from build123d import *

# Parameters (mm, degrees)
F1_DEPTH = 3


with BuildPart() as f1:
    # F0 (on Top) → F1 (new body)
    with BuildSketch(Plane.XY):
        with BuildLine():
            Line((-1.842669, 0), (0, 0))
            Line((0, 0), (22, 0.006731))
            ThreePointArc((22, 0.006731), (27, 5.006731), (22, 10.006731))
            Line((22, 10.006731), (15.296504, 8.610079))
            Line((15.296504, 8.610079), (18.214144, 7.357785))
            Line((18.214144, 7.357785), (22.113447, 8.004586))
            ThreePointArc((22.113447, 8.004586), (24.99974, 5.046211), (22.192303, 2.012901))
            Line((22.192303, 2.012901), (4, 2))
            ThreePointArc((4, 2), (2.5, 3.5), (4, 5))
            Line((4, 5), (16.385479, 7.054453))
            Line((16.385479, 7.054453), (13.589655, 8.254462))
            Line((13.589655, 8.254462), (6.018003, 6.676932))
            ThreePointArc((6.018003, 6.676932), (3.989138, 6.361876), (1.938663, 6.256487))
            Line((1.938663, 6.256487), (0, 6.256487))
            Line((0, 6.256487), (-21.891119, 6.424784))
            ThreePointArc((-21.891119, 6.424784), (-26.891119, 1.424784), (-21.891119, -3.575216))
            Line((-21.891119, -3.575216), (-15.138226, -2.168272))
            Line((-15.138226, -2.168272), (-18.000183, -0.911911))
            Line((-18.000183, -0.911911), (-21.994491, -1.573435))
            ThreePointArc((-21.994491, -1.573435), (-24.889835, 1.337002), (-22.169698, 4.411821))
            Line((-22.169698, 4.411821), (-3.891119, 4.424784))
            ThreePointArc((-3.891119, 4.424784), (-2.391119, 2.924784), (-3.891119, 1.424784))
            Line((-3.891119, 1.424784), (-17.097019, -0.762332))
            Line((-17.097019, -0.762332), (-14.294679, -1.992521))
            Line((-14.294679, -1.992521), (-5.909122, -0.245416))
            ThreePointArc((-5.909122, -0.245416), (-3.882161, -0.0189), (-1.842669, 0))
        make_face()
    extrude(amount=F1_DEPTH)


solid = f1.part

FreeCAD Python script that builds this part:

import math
import FreeCAD as App
import Part
import Sketcher
from FreeCAD import Vector

doc = App.newDocument("Part")
body = doc.addObject("PartDesign::Body", "Body")

# Sketch on XY plane
sketch1 = doc.addObject("Sketcher::SketchObject", "Sketch")
body.addObject(sketch1)
sketch1.AttachmentSupport = (doc.XY_Plane, [""])
sketch1.MapMode = "FlatFace"
sketch1.addGeometry([
    Part.LineSegment(Vector(-1.8, 0, 0), Vector(0, 0, 0)),  # 0
    Part.LineSegment(Vector(0, 0, 0), Vector(22, 0, 0)),  # 1
    Part.ArcOfCircle(Part.Circle(Vector(22, 5, 0), Vector(0, 0, 1), 5), math.radians(-90), math.radians(90)),  # 2
    Part.LineSegment(Vector(22, 10, 0), Vector(15.3, 8.6, 0)),  # 3
    Part.LineSegment(Vector(15.3, 8.6, 0), Vector(18.2, 7.4, 0)),  # 4
    Part.LineSegment(Vector(18.2, 7.4, 0), Vector(22.1, 8, 0)),  # 5
    Part.ArcOfCircle(Part.Circle(Vector(22, 5, 0), Vector(0, 0, 1), 3), math.radians(-86), math.radians(88)),  # 6
    Part.LineSegment(Vector(22.2, 2, 0), Vector(4, 2, 0)),  # 7
    Part.ArcOfCircle(Part.Circle(Vector(4, 3.5, 0), Vector(0, 0, 1), 1.5), math.radians(90), math.radians(270)),  # 8
    Part.LineSegment(Vector(4, 5, 0), Vector(16.4, 7.1, 0)),  # 9
    Part.LineSegment(Vector(16.4, 7.1, 0), Vector(13.6, 8.3, 0)),  # 10
    Part.LineSegment(Vector(13.6, 8.3, 0), Vector(6, 6.7, 0)),  # 11
    Part.ArcOfCircle(Part.Circle(Vector(1.9, 26.3, 0), Vector(0, 0, 1), 20), math.radians(-90), math.radians(-78.23)),  # 12
    Part.LineSegment(Vector(1.9, 6.3, 0), Vector(0, 6.3, 0)),  # 13
    Part.LineSegment(Vector(0, 6.3, 0), Vector(-21.9, 6.4, 0)),  # 14
    Part.ArcOfCircle(Part.Circle(Vector(-21.9, 1.4, 0), Vector(0, 0, 1), 5), math.radians(90), math.radians(270)),  # 15
    Part.LineSegment(Vector(-21.9, -3.6, 0), Vector(-15.1, -2.2, 0)),  # 16
    Part.LineSegment(Vector(-15.1, -2.2, 0), Vector(-18, -0.9, 0)),  # 17
    Part.LineSegment(Vector(-18, -0.9, 0), Vector(-22, -1.6, 0)),  # 18
    Part.ArcOfCircle(Part.Circle(Vector(-21.9, 1.4, 0), Vector(0, 0, 1), 3), math.radians(95), math.radians(268)),  # 19
    Part.LineSegment(Vector(-22.2, 4.4, 0), Vector(-3.9, 4.4, 0)),  # 20
    Part.ArcOfCircle(Part.Circle(Vector(-3.9, 2.9, 0), Vector(0, 0, 1), 1.5), math.radians(-90), math.radians(90)),  # 21
    Part.LineSegment(Vector(-3.9, 1.4, 0), Vector(-17.1, -0.8, 0)),  # 22
    Part.LineSegment(Vector(-17.1, -0.8, 0), Vector(-14.3, -2, 0)),  # 23
    Part.LineSegment(Vector(-14.3, -2, 0), Vector(-5.9, -0.2, 0)),  # 24
    Part.ArcOfCircle(Part.Circle(Vector(-2.7, -20, 0), Vector(0, 0, 1), 20), math.radians(87.61), math.radians(99.3)),  # 25
], False)
sketch1.addConstraint([
    Sketcher.Constraint("Coincident", 0, 2, 1, 1),
    Sketcher.Constraint("Coincident", 1, 2, 2, 1),
    Sketcher.Constraint("Coincident", 2, 2, 3, 1),
    Sketcher.Constraint("Coincident", 3, 2, 4, 1),
    Sketcher.Constraint("Coincident", 4, 2, 5, 1),
    Sketcher.Constraint("Coincident", 5, 2, 6, 2),
    Sketcher.Constraint("Coincident", 6, 1, 7, 1),
    Sketcher.Constraint("Coincident", 7, 2, 8, 2),
    Sketcher.Constraint("Coincident", 8, 1, 9, 1),
    Sketcher.Constraint("Coincident", 9, 2, 10, 1),
    Sketcher.Constraint("Coincident", 10, 2, 11, 1),
    Sketcher.Constraint("Tangent", 11, 2, 12, 2),
    Sketcher.Constraint("Tangent", 12, 1, 13, 1),
    Sketcher.Constraint("Coincident", 13, 2, 14, 1),
    Sketcher.Constraint("Coincident", 14, 2, 15, 1),
    Sketcher.Constraint("Coincident", 15, 2, 16, 1),
    Sketcher.Constraint("Coincident", 16, 2, 17, 1),
    Sketcher.Constraint("Coincident", 17, 2, 18, 1),
    Sketcher.Constraint("Coincident", 18, 2, 19, 2),
    Sketcher.Constraint("Coincident", 19, 1, 20, 1),
    Sketcher.Constraint("Coincident", 20, 2, 21, 2),
    Sketcher.Constraint("Coincident", 21, 1, 22, 1),
    Sketcher.Constraint("Coincident", 22, 2, 23, 1),
    Sketcher.Constraint("Coincident", 23, 2, 24, 1),
    Sketcher.Constraint("Coincident", 24, 2, 25, 2),
    Sketcher.Constraint("Coincident", 25, 1, 0, 1),
    Sketcher.Constraint("Horizontal", 0),
    Sketcher.Constraint("Horizontal", 13),
    Sketcher.Constraint("Coincident", 0, 2, -1, 1),
    Sketcher.Constraint("Coincident", 6, 3, 2, 3),
    Sketcher.Constraint("Coincident", 19, 3, 15, 3),
    Sketcher.Constraint("Equal", 2, 15),
    Sketcher.Constraint("Equal", 6, 19),
    Sketcher.Constraint("Equal", 8, 21),
    Sketcher.Constraint("PointOnObject", 13, 2, -2),
    Sketcher.Constraint("Parallel", 5, 9),
    Sketcher.Constraint("Parallel", 4, 10),
    Sketcher.Constraint("Parallel", 3, 11),
    Sketcher.Constraint("Parallel", 11, 16),
    Sketcher.Constraint("Parallel", 7, 20),
    Sketcher.Constraint("Parallel", 18, 22),
    Sketcher.Constraint("Parallel", 17, 23),
    Sketcher.Constraint("Parallel", 16, 24),
    Sketcher.Constraint("Horizontal", 19, 3, 21, 1),
    Sketcher.Constraint("Vertical", 6, 3, 1, 2),
    Sketcher.Constraint("Vertical", 1, 2, 2, 2),
    Sketcher.Constraint("Vertical", 8, 3, 7, 2),
    Sketcher.Constraint("Vertical", 7, 2, 8, 1),
    Sketcher.Constraint("Vertical", 19, 3, 14, 2),
    Sketcher.Constraint("Vertical", 14, 2, 15, 2),
    Sketcher.Constraint("Vertical", 21, 3, 20, 2),
    Sketcher.Constraint("Vertical", 20, 2, 21, 1),
    Sketcher.Constraint("Radius", 2, 5.0),
    Sketcher.Constraint("Radius", 6, 3.0),
    Sketcher.Constraint("Radius", 12, 19.999999),
    Sketcher.Constraint("Radius", 8, 1.5),
    Sketcher.Constraint("Distance", 1, 22.000001),
    Sketcher.Constraint("DistanceX", -1, 1, 8, 3, 4.0),
    Sketcher.Constraint("DistanceY", -1, 1, 7, 2, 2.0),
    Sketcher.Constraint("DistanceX", 15, 3, 21, 3, 18.0),
    Sketcher.Constraint("Radius", 25, 20.00003),
    Sketcher.Constraint("DistanceX", 0, 1, 0, 2, 1.842669),
    Sketcher.Constraint("DistanceY", -1, 1, 6, 1, 2.012901),
    Sketcher.Constraint("DistanceX", 19, 1, -1, 1, 22.169698),
    Sketcher.Constraint("DistanceY", 4, 2, 5, 2, 0.646801),
    Sketcher.Constraint("DistanceX", 15, 3, 22, 2, 4.7941),
    Sketcher.Constraint("DistanceY", 24, 2, 21, 1, 1.6702),
    Sketcher.Constraint("Distance", 17, 3.125578),
    Sketcher.Constraint("Distance", 23, 3.06047),
    Sketcher.Constraint("DistanceX", 13, 2, 13, 1, 1.938663),
    Sketcher.Constraint("DistanceY", -1, 1, 2, 3, 5.006731),
    Sketcher.Constraint("DistanceY", -1, 1, 3, 2, 8.610079),
    Sketcher.Constraint("DistanceX", -1, 1, 9, 2, 16.385479),
    Sketcher.Constraint("DistanceY", 16, 2, -1, 1, 2.168272),
    Sketcher.Constraint("DistanceY", 17, 2, -1, 1, 0.911911),
    Sketcher.Constraint("DistanceX", 18, 2, -1, 1, 21.994491),
    Sketcher.Constraint("DistanceY", -1, 1, 19, 1, 4.411821),
    Sketcher.Constraint("DistanceY", 23, 2, -1, 1, 1.992521),
    Sketcher.Constraint("DistanceX", 3, 2, 4, 2, 2.91764),
    Sketcher.Constraint("DistanceX", 9, 2, 5, 2, 5.727968),
    Sketcher.Constraint("DistanceX", 10, 2, 3, 2, 1.706849),
])
pad1 = doc.addObject("PartDesign::Pad", "Pad")
body.addObject(pad1)
pad1.Profile = sketch1
pad1.Length = 3

doc.recompute()
